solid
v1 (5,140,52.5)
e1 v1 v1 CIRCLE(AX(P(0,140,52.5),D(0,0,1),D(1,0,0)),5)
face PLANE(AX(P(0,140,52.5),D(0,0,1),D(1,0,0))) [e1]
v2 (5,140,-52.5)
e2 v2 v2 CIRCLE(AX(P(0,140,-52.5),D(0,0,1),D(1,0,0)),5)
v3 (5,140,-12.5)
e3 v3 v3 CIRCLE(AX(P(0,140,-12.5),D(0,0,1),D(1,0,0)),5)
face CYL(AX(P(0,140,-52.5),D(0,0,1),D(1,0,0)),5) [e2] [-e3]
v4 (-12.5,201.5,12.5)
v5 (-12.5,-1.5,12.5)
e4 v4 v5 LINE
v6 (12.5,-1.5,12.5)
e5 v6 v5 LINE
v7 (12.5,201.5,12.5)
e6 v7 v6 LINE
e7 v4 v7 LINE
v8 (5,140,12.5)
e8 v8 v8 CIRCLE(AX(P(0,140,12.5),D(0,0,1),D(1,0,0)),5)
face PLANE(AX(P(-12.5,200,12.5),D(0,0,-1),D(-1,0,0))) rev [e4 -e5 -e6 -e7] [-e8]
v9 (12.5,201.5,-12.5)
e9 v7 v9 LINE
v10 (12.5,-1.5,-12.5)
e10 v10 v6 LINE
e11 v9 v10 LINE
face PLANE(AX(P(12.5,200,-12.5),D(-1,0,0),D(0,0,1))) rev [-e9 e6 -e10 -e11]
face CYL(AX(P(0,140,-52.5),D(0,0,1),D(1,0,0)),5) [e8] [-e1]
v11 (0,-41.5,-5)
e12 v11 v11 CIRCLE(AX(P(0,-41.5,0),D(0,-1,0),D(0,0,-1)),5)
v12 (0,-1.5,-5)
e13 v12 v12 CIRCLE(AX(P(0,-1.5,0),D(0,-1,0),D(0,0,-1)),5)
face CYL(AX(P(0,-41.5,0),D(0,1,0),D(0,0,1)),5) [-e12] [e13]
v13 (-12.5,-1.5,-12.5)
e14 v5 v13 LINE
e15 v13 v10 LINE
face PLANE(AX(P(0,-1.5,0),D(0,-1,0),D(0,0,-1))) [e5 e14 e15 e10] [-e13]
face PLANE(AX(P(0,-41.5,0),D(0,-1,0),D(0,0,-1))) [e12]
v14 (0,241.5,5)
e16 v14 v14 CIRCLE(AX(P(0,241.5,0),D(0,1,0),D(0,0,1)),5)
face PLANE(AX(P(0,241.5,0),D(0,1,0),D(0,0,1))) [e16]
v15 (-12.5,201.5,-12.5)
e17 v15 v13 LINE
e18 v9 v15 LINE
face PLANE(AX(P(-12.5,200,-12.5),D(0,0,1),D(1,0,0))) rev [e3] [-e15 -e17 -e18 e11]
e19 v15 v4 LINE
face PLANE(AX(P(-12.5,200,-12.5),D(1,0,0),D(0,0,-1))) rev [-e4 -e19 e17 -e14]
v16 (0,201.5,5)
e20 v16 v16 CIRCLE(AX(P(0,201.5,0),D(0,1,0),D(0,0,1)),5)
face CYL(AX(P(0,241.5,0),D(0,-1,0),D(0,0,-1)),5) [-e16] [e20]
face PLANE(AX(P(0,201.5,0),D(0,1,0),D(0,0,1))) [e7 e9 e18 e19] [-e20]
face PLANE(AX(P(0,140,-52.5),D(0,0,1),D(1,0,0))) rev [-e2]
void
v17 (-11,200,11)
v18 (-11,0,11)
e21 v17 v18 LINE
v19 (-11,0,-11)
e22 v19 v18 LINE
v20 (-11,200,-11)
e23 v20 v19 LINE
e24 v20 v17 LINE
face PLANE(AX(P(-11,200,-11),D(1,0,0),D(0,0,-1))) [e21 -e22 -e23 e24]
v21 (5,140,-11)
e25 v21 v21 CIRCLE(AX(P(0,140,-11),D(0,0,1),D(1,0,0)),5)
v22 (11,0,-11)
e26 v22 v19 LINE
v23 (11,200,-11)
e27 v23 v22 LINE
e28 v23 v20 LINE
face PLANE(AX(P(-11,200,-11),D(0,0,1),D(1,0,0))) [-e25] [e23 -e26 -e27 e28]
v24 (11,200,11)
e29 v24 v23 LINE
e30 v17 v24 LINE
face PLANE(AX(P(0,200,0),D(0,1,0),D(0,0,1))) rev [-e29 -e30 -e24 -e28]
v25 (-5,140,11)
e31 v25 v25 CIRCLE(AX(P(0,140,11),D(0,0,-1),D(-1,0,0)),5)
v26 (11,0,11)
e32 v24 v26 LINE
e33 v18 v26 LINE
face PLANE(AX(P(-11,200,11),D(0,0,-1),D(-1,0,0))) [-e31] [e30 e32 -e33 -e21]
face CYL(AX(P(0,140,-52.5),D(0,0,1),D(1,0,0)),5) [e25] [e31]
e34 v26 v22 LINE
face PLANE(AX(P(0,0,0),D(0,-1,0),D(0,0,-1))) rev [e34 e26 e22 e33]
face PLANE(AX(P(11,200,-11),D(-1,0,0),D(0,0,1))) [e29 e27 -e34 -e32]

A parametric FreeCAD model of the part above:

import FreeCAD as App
import Part
import Sketcher
from FreeCAD import Vector


def add_polygon(sketch, points):
    """Adds a closed chain of lines whose ends are joined by coincident constraints."""
    first, n = sketch.GeometryCount, len(points)
    for a, b in zip(points, points[1:] + points[:1]):
        sketch.addGeometry(Part.LineSegment(App.Vector(*a, 0), App.Vector(*b, 0)), False)
    for i in range(n):
        sketch.addConstraint(Sketcher.Constraint("Coincident", first + i, 2, first + (i + 1) % n, 1))

doc = App.newDocument("Part")
params = doc.addObject("Spreadsheet::Sheet", "Params")
for row, (alias, value) in enumerate([
    ("sketch1_width", "25 mm"),
    ("sketch1_width2", "22 mm"),
    ("pad1_length", "200 mm"),
    ("sketch2_diameter", "10 mm"),
    ("pocket1_length", "25 mm"),
    ("sketch3_diameter", "10 mm"),
    ("pad2_length", "52.5 mm"),
    ("pad2_length2", "52.5 mm"),
    ("sketch4_width", "25 mm"),
    ("pad3_length", "1.5 mm"),
    ("sketch5_width", "25 mm"),
    ("pad4_length", "1.5 mm"),
    ("sketch6_diameter", "10 mm"),
    ("pad5_length", "40 mm"),
    ("sketch7_diameter", "10 mm"),
    ("pad6_length", "40 mm"),
], start=1):
    params.set(f"A{row}", alias)
    params.set(f"B{row}", "=" + value)
    params.setAlias(f"B{row}", alias)

body = doc.addObject("PartDesign::Body", "Body")

# Sketch on XZ plane
sketch1 = body.newObject("Sketcher::SketchObject", "Sketch")
sketch1.AttachmentSupport = (doc.getObject("XZ_Plane"), [""])
sketch1.MapMode = "FlatFace"
add_polygon(sketch1, [(-12, -12), (-12, 12), (12, 12), (12, -12)])  # lines 0-3
add_polygon(sketch1, [(11, 11), (-11, 11), (-11, -11), (11, -11)])  # lines 4-7
sketch1.addConstraint([
    Sketcher.Constraint("Vertical", 0),
    Sketcher.Constraint("Horizontal", 1),
    Sketcher.Constraint("Vertical", 2),
    Sketcher.Constraint("Horizontal", 3),
    Sketcher.Constraint("Horizontal", 4),
    Sketcher.Constraint("Vertical", 5),
    Sketcher.Constraint("Horizontal", 6),
    Sketcher.Constraint("Vertical", 7),
    Sketcher.Constraint("Symmetric", 0, 2, 2, 2, -1, 1),
    Sketcher.Constraint("Symmetric", 4, 2, 6, 2, -1, 1),
    Sketcher.Constraint("Equal", 3, 0),
    Sketcher.Constraint("Equal", 6, 5),
    Sketcher.Constraint("DistanceX", 1, 1, 1, 2, 25.0),
    Sketcher.Constraint("DistanceX", 4, 2, 4, 1, 22.0),
])
sketch1.setExpression("Constraints[20]", "Params.sketch1_width")
sketch1.setExpression("Constraints[21]", "Params.sketch1_width2")
pad1 = body.newObject("PartDesign::Pad", "Pad")
pad1.Profile = sketch1
pad1.setExpression("Length", "Params.pad1_length")
pad1.Reversed = True

# Sketch on XY plane
sketch2 = body.newObject("Sketcher::SketchObject", "Sketch001")
sketch2.AttachmentSupport = (doc.getObject("XY_Plane"), [""])
sketch2.MapMode = "FlatFace"
sketch2.AttachmentOffset = App.Placement(Vector(0, 0, 12.5), App.Rotation())
sketch2.addGeometry(Part.Circle(Vector(0, 140, 0), Vector(0, 0, 1), 5), False)
sketch2.addConstraint([
    Sketcher.Constraint("PointOnObject", 0, 3, -2),
    Sketcher.Constraint("Diameter", 0, 10.0),
    Sketcher.Constraint("DistanceY", -1, 1, 0, 3, 140.0),
])
sketch2.setExpression("Constraints[1]", "Params.sketch2_diameter")
pocket1 = body.newObject("PartDesign::Pocket", "Pocket")
pocket1.Profile = sketch2
pocket1.setExpression("Length", "Params.pocket1_length")

# Sketch on XY plane
sketch3 = body.newObject("Sketcher::SketchObject", "Sketch002")
sketch3.AttachmentSupport = (doc.getObject("XY_Plane"), [""])
sketch3.MapMode = "FlatFace"
sketch3.addGeometry(Part.Circle(Vector(0, 140, 0), Vector(0, 0, 1), 5), False)
sketch3.addConstraint([
    Sketcher.Constraint("PointOnObject", 0, 3, -2),
    Sketcher.Constraint("Diameter", 0, 10.0),
    Sketcher.Constraint("DistanceY", -1, 1, 0, 3, 140.0),
])
sketch3.setExpression("Constraints[1]", "Params.sketch3_diameter")
pad2 = body.newObject("PartDesign::Pad", "Pad001")
pad2.Profile = sketch3
pad2.Type = "TwoLengths"
pad2.setExpression("Length", "Params.pad2_length")
pad2.setExpression("Length2", "Params.pad2_length2")

# Sketch on XZ plane
sketch4 = body.newObject("Sketcher::SketchObject", "Sketch003")
sketch4.AttachmentSupport = (doc.getObject("XZ_Plane"), [""])
sketch4.MapMode = "FlatFace"
sketch4.AttachmentOffset = App.Placement(Vector(0, 0, -200), App.Rotation())
add_polygon(sketch4, [(-12, -12), (-12, 12), (12, 12), (12, -12)])  # lines 0-3
sketch4.addConstraint([
    Sketcher.Constraint("Vertical", 0),
    Sketcher.Constraint("Horizontal", 1),
    Sketcher.Constraint("Vertical", 2),
    Sketcher.Constraint("Horizontal", 3),
    Sketcher.Constraint("Symmetric", 0, 2, 2, 2, -1, 1),
    Sketcher.Constraint("Equal", 3, 0),
    Sketcher.Constraint("DistanceX", 1, 1, 1, 2, 25.0),
])
sketch4.setExpression("Constraints[10]", "Params.sketch4_width")
pad3 = body.newObject("PartDesign::Pad", "Pad002")
pad3.Profile = sketch4
pad3.setExpression("Length", "Params.pad3_length")
pad3.Reversed = True

# Sketch on XZ plane
sketch5 = body.newObject("Sketcher::SketchObject", "Sketch004")
sketch5.AttachmentSupport = (doc.getObject("XZ_Plane"), [""])
sketch5.MapMode = "FlatFace"
add_polygon(sketch5, [(-12, 12), (-12, -12), (12, -12), (12, 12)])  # lines 0-3
sketch5.addConstraint([
    Sketcher.Constraint("Vertical", 0),
    Sketcher.Constraint("Horizontal", 1),
    Sketcher.Constraint("Vertical", 2),
    Sketcher.Constraint("Horizontal", 3),
    Sketcher.Constraint("Symmetric", 0, 2, 2, 2, -1, 1),
    Sketcher.Constraint("Equal", 3, 0),
    Sketcher.Constraint("DistanceX", 1, 1, 1, 2, 25.0),
])
sketch5.setExpression("Constraints[10]", "Params.sketch5_width")
pad4 = body.newObject("PartDesign::Pad", "Pad003")
pad4.Profile = sketch5
pad4.setExpression("Length", "Params.pad4_length")

# Sketch on XZ plane
sketch6 = body.newObject("Sketcher::SketchObject", "Sketch005")
sketch6.AttachmentSupport = (doc.getObject("XZ_Plane"), [""])
sketch6.MapMode = "FlatFace"
sketch6.AttachmentOffset = App.Placement(Vector(0, 0, 1.5), App.Rotation())
sketch6.addGeometry(Part.Circle(Vector(0, 0, 0), Vector(0, 0, 1), 5), False)
sketch6.addConstraint([
    Sketcher.Constraint("Coincident", 0, 3, -1, 1),
    Sketcher.Constraint("Diameter", 0, 10.0),
])
sketch6.setExpression("Constraints[1]", "Params.sketch6_diameter")
pad5 = body.newObject("PartDesign::Pad", "Pad004")
pad5.Profile = sketch6
pad5.setExpression("Length", "Params.pad5_length")

# Sketch on XZ plane
sketch7 = body.newObject("Sketcher::SketchObject", "Sketch006")
sketch7.AttachmentSupport = (doc.getObject("XZ_Plane"), [""])
sketch7.MapMode = "FlatFace"
sketch7.AttachmentOffset = App.Placement(Vector(0, 0, -241.5), App.Rotation())
sketch7.addGeometry(Part.Circle(Vector(0, 0, 0), Vector(0, 0, 1), 5), False)
sketch7.addConstraint([
    Sketcher.Constraint("Coincident", 0, 3, -1, 1),
    Sketcher.Constraint("Diameter", 0, 10.0),
])
sketch7.setExpression("Constraints[1]", "Params.sketch7_diameter")
pad6 = body.newObject("PartDesign::Pad", "Pad005")
pad6.Profile = sketch7
pad6.setExpression("Length", "Params.pad6_length")

doc.recompute()
